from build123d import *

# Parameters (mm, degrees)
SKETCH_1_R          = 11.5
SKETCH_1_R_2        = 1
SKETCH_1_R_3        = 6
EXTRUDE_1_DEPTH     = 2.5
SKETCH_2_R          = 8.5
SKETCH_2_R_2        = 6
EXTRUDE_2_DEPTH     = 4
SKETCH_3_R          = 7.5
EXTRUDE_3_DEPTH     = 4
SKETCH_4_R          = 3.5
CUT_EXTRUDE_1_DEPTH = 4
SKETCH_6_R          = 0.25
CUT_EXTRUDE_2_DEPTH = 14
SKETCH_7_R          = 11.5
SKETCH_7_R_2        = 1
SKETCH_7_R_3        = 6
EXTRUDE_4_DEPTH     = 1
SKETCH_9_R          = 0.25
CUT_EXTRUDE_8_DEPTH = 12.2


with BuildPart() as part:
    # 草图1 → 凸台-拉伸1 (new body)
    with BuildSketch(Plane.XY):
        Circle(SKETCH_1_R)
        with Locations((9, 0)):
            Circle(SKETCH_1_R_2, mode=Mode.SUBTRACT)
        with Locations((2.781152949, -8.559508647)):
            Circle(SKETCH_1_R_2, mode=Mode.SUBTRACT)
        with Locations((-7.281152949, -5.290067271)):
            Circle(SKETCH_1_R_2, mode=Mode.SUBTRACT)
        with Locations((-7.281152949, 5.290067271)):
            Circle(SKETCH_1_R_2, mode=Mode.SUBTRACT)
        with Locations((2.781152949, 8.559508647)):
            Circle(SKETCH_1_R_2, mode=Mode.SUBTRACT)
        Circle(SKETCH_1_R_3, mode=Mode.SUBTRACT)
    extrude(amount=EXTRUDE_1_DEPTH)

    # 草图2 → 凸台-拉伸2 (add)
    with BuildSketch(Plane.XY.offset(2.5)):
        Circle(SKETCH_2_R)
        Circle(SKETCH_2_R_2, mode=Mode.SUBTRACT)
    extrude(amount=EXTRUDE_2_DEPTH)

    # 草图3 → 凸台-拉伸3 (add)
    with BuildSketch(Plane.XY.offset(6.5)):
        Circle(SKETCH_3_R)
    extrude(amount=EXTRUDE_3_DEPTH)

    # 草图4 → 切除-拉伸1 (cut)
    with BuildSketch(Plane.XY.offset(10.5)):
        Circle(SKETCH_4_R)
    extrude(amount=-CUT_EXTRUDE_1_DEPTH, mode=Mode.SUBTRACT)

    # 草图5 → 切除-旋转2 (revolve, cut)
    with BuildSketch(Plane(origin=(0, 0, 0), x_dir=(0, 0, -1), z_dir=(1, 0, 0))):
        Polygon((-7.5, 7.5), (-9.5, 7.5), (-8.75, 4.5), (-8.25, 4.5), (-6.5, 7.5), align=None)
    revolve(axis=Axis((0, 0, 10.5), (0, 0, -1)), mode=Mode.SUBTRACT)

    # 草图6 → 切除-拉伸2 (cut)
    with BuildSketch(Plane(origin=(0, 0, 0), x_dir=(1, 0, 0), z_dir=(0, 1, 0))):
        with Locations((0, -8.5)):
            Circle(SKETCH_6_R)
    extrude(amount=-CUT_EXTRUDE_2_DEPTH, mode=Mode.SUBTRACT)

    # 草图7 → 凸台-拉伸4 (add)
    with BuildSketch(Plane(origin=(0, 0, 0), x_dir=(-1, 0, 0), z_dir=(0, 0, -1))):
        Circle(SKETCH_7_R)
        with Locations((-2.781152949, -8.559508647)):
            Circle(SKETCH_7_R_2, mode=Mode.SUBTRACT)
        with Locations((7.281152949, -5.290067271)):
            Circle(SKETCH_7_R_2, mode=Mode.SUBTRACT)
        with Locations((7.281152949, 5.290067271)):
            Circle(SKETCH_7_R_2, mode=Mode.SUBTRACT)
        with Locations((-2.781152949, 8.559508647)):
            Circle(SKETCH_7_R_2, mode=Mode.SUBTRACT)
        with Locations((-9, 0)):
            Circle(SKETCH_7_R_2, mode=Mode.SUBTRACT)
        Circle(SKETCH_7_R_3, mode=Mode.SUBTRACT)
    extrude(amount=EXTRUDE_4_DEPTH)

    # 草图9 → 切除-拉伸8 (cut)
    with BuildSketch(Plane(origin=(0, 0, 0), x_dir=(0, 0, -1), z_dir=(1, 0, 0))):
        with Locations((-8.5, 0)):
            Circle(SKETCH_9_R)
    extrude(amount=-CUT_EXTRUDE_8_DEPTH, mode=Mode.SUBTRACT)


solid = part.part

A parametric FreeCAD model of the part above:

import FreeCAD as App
import Part
import Sketcher

V = App.Vector

doc = App.newDocument("Part")
body = doc.addObject("PartDesign::Body", "Body")

# Sketch on XY plane
sketch1 = body.newObject("Sketcher::SketchObject", "Sketch")
sketch1.AttachmentSupport = (doc.getObject("XY_Plane"), [""])
sketch1.MapMode = "FlatFace"
sketch1.addGeometry([
    Part.Circle(V(0, 0, 0), V(0, 0, 1), 11.5),  # 0
    Part.Circle(V(-7.281153, -5.290067, 0), V(0, 0, 1), 1),  # 1
    Part.Circle(V(2.781153, -8.559509, 0), V(0, 0, 1), 1),  # 2
    Part.Circle(V(0, 0, 0), V(0, 0, 1), 6),  # 3
    Part.Circle(V(-7.281153, 5.290067, 0), V(0, 0, 1), 1),  # 4
    Part.Circle(V(9, 0, 0), V(0, 0, 1), 1),  # 5
    Part.Circle(V(2.781153, 8.559509, 0), V(0, 0, 1), 1),  # 6
], False)
sketch1.addConstraint([
    Sketcher.Constraint("Coincident", 0, 3, -1, 1),
    Sketcher.Constraint("Coincident", 3, 3, -1, 1),
    Sketcher.Constraint("Equal", 1, 2),
    Sketcher.Constraint("Equal", 2, 4),
    Sketcher.Constraint("Equal", 4, 5),
    Sketcher.Constraint("Equal", 5, 6),
    Sketcher.Constraint("Symmetric", 1, 3, 4, 3, -1),
    Sketcher.Constraint("Symmetric", 2, 3, 6, 3, -1),
    Sketcher.Constraint("PointOnObject", 5, 3, -1),
    Sketcher.Constraint("Diameter", 0, 23.0),
    Sketcher.Constraint("Diameter", 1, 2.0),
    Sketcher.Constraint("Diameter", 3, 12.0),
    Sketcher.Constraint("DistanceX", -1, 1, 5, 3, 9.0),
    Sketcher.Constraint("DistanceY", 2, 3, -1, 1, 8.559509),
    Sketcher.Constraint("DistanceY", 2, 3, 1, 3, 3.269441),
    Sketcher.Constraint("DistanceX", 1, 3, -1, 1, 7.281153),
    Sketcher.Constraint("DistanceX", -1, 1, 2, 3, 2.781153),
])
pad1 = body.newObject("PartDesign::Pad", "Pad")
pad1.Profile = sketch1
pad1.Length = 2.5

# Sketch on XY plane
sketch2 = body.newObject("Sketcher::SketchObject", "Sketch001")
sketch2.AttachmentSupport = (doc.getObject("XY_Plane"), [""])
sketch2.MapMode = "FlatFace"
sketch2.AttachmentOffset = App.Placement(V(0, 0, 2.5), App.Rotation())
sketch2.addGeometry([
    Part.Circle(V(0, 0, 0), V(0, 0, 1), 8.5),
    Part.Circle(V(0, 0, 0), V(0, 0, 1), 6),
], False)
sketch2.addConstraint([
    Sketcher.Constraint("Coincident", 0, 3, -1, 1),
    Sketcher.Constraint("Coincident", 1, 3, -1, 1),
    Sketcher.Constraint("Diameter", 0, 17.0),
    Sketcher.Constraint("Diameter", 1, 12.0),
])
pad2 = body.newObject("PartDesign::Pad", "Pad001")
pad2.Profile = sketch2
pad2.Length = 4

# Sketch on XY plane
sketch3 = body.newObject("Sketcher::SketchObject", "Sketch002")
sketch3.AttachmentSupport = (doc.getObject("XY_Plane"), [""])
sketch3.MapMode = "FlatFace"
sketch3.AttachmentOffset = App.Placement(V(0, 0, 6.5), App.Rotation())
sketch3.addGeometry(Part.Circle(V(0, 0, 0), V(0, 0, 1), 7.5), False)
sketch3.addConstraint([
    Sketcher.Constraint("Coincident", 0, 3, -1, 1),
    Sketcher.Constraint("Diameter", 0, 15.0),
])
pad3 = body.newObject("PartDesign::Pad", "Pad002")
pad3.Profile = sketch3
pad3.Length = 4

# Sketch on XY plane
sketch4 = body.newObject("Sketcher::SketchObject", "Sketch003")
sketch4.AttachmentSupport = (doc.getObject("XY_Plane"), [""])
sketch4.MapMode = "FlatFace"
sketch4.AttachmentOffset = App.Placement(V(0, 0, 10.5), App.Rotation())
sketch4.addGeometry(Part.Circle(V(0, 0, 0), V(0, 0, 1), 3.5), False)
sketch4.addConstraint([
    Sketcher.Constraint("Coincident", 0, 3, -1, 1),
    Sketcher.Constraint("Diameter", 0, 7.0),
])
pocket1 = body.newObject("PartDesign::Pocket", "Pocket")
pocket1.Profile = sketch4
pocket1.Length = 4

# Sketch on YZ plane
sketch5 = body.newObject("Sketcher::SketchObject", "Sketch004")
sketch5.AttachmentSupport = (doc.getObject("YZ_Plane"), [""])
sketch5.MapMode = "FlatFace"
sketch5.addGeometry([
    Part.LineSegment(V(7.5, 9.5, 0), V(4.5, 8.75, 0)),
    Part.LineSegment(V(4.5, 8.75, 0), V(4.5, 8.25, 0)),
    Part.LineSegment(V(4.5, 8.25, 0), V(7.5, 6.5, 0)),
    Part.LineSegment(V(7.5, 6.5, 0), V(7.5, 9.5, 0)),
], False)
sketch5.addConstraint([
    Sketcher.Constraint("Coincident", 0, 2, 1, 1),
    Sketcher.Constraint("Coincident", 1, 2, 2, 1),
    Sketcher.Constraint("Coincident", 2, 2, 3, 1),
    Sketcher.Constraint("Coincident", 3, 2, 0, 1),
    Sketcher.Constraint("Vertical", 1),
    Sketcher.Constraint("Vertical", 3),
    Sketcher.Constraint("DistanceY", 3, 1, 3, 2, 3.0),
    Sketcher.Constraint("DistanceY", 1, 2, 1, 1, 0.5),
    Sketcher.Constraint("DistanceX", 1, 2, 2, 2, 3.0),
    Sketcher.Constraint("DistanceX", -1, 1, 0, 2, 4.5),
    Sketcher.Constraint("DistanceY", -1, 1, 2, 2, 6.5),
    Sketcher.Constraint("DistanceY", -1, 1, 0, 2, 8.75),
])
groove = body.newObject("PartDesign::Groove", "Groove")
groove.Profile = sketch5
groove.ReferenceAxis = (sketch5, ["V_Axis"])
groove.Angle = 360

# Sketch on XZ plane
sketch6 = body.newObject("Sketcher::SketchObject", "Sketch005")
sketch6.AttachmentSupport = (doc.getObject("XZ_Plane"), [""])
sketch6.MapMode = "FlatFace"
sketch6.addGeometry(Part.Circle(V(0, 8.5, 0), V(0, 0, 1), 0.25), False)
sketch6.addConstraint([
    Sketcher.Constraint("PointOnObject", 0, 3, -2),
    Sketcher.Constraint("Diameter", 0, 0.5),
    Sketcher.Constraint("DistanceY", -1, 1, 0, 3, 8.5),
])
pocket2 = body.newObject("PartDesign::Pocket", "Pocket001")
pocket2.Profile = sketch6
pocket2.Length = 14
pocket2.Reversed = True

# Sketch on XY plane
sketch7 = body.newObject("Sketcher::SketchObject", "Sketch006")
sketch7.AttachmentSupport = (doc.getObject("XY_Plane"), [""])
sketch7.MapMode = "FlatFace"
sketch7.addGeometry([
    Part.Circle(V(0, 0, 0), V(0, 0, 1), 11.5),  # 0
    Part.Circle(V(2.781153, -8.559509, 0), V(0, 0, 1), 1),  # 1
    Part.Circle(V(-7.281153, -5.290067, 0), V(0, 0, 1), 1),  # 2
    Part.Circle(V(9, 0, 0), V(0, 0, 1), 1),  # 3
    Part.Circle(V(2.781153, 8.559509, 0), V(0, 0, 1), 1),  # 4
    Part.Circle(V(0, 0, 0), V(0, 0, 1), 6),  # 5
    Part.Circle(V(-7.281153, 5.290067, 0), V(0, 0, 1), 1),  # 6
], False)
sketch7.addConstraint([
    Sketcher.Constraint("Coincident", 0, 3, -1, 1),
    Sketcher.Constraint("Coincident", 5, 3, -1, 1),
    Sketcher.Constraint("Equal", 1, 2),
    Sketcher.Constraint("Equal", 2, 3),
    Sketcher.Constraint("Equal", 3, 4),
    Sketcher.Constraint("Equal", 4, 6),
    Sketcher.Constraint("Symmetric", 1, 3, 4, 3, -1),
    Sketcher.Constraint("Symmetric", 2, 3, 6, 3, -1),
    Sketcher.Constraint("PointOnObject", 3, 3, -1),
    Sketcher.Constraint("Diameter", 0, 23.0),
    Sketcher.Constraint("Diameter", 1, 2.0),
    Sketcher.Constraint("Diameter", 5, 12.0),
    Sketcher.Constraint("DistanceX", -1, 1, 3, 3, 9.0),
    Sketcher.Constraint("DistanceY", 1, 3, -1, 1, 8.559509),
    Sketcher.Constraint("DistanceY", 1, 3, 2, 3, 3.269441),
    Sketcher.Constraint("DistanceX", -1, 1, 1, 3, 2.781153),
    Sketcher.Constraint("DistanceX", 2, 3, -1, 1, 7.281153),
])
pad4 = body.newObject("PartDesign::Pad", "Pad003")
pad4.Profile = sketch7
pad4.Length = 1
pad4.Reversed = True

# Sketch on YZ plane
sketch8 = body.newObject("Sketcher::SketchObject", "Sketch007")
sketch8.AttachmentSupport = (doc.getObject("YZ_Plane"), [""])
sketch8.MapMode = "FlatFace"
sketch8.addGeometry(Part.Circle(V(0, 8.5, 0), V(0, 0, 1), 0.25), False)
sketch8.addConstraint([
    Sketcher.Constraint("PointOnObject", 0, 3, -2),
    Sketcher.Constraint("Diameter", 0, 0.5),
    Sketcher.Constraint("DistanceY", -1, 1, 0, 3, 8.5),
])
pocket3 = body.newObject("PartDesign::Pocket", "Pocket002")
pocket3.Profile = sketch8
pocket3.Length = 12.2

doc.recompute()
